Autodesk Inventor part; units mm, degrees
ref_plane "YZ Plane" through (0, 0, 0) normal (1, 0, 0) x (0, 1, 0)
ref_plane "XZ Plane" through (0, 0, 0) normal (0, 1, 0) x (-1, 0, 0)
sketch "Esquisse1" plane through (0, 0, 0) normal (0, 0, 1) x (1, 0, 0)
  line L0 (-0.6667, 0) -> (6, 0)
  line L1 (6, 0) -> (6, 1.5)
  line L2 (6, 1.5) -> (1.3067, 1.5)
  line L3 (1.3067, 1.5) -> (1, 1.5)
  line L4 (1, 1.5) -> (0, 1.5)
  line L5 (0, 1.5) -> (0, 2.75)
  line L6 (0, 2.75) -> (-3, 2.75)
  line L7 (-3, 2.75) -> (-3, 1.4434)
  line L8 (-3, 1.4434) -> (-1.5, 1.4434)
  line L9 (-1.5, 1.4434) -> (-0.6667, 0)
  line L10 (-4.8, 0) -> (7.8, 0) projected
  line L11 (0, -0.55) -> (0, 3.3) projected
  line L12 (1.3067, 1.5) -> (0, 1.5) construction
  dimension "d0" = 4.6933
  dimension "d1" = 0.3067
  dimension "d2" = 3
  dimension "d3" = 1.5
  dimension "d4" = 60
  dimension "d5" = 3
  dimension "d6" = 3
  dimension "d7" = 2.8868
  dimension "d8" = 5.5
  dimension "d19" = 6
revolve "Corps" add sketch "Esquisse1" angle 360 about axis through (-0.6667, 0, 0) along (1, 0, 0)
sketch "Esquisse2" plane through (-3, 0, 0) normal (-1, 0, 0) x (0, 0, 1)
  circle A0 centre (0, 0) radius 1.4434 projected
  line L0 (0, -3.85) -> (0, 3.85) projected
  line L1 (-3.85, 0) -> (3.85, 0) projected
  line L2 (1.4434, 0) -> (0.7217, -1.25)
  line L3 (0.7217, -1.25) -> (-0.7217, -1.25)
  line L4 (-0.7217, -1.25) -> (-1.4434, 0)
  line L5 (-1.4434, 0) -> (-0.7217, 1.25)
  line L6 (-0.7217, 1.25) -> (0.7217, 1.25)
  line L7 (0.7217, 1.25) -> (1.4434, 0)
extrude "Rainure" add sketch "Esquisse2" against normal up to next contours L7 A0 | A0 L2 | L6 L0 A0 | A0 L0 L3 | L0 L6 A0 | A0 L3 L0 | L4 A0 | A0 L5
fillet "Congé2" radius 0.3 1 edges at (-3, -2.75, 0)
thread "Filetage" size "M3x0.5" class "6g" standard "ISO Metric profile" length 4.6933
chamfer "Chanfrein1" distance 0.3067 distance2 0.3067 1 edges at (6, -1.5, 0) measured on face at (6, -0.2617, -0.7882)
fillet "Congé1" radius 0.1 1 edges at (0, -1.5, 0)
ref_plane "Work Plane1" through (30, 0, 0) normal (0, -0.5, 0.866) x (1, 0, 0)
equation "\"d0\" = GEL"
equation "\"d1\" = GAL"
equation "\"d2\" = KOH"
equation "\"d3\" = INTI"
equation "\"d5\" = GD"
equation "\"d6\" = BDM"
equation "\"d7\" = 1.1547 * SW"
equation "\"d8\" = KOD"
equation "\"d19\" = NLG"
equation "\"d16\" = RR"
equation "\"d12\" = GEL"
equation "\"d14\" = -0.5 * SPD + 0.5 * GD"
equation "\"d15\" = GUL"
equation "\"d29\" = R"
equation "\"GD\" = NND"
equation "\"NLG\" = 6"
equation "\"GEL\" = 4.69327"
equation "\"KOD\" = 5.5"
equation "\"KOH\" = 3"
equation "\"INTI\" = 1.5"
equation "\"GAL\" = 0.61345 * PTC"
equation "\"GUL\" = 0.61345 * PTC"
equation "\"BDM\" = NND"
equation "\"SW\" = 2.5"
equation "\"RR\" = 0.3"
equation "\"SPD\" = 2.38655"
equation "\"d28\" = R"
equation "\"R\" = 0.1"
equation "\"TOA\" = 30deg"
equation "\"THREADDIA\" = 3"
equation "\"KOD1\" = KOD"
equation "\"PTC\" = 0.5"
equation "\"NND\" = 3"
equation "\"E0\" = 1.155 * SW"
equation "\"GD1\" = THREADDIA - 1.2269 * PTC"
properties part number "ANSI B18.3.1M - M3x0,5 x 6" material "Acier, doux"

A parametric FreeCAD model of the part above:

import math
import FreeCAD as App
import Part
import Sketcher

V = App.Vector
Q = App.Units.Quantity


def edges_at(feature, points):
    """Names of the edges that pass closest to the given points."""
    edges = feature.Shape.Edges
    near = lambda p: min(range(len(edges)), key=lambda i: edges[i].distToShape(Part.Vertex(*p))[0])
    return sorted({f"Edge{near(p) + 1}" for p in points})


def add_polygon(sketch, points):
    """Adds a closed chain of lines whose ends are joined by coincident constraints."""
    first, n = sketch.GeometryCount, len(points)
    for a, b in zip(points, points[1:] + points[:1]):
        sketch.addGeometry(Part.LineSegment(App.Vector(*a, 0), App.Vector(*b, 0)), False)
    for i in range(n):
        sketch.addConstraint(Sketcher.Constraint("Coincident", first + i, 2, first + (i + 1) % n, 1))

doc = App.newDocument("Part")
body = doc.addObject("PartDesign::Body", "Body")

# Sketch on XY plane
sketch1 = body.newObject("Sketcher::SketchObject", "Sketch")
sketch1.AttachmentSupport = (doc.getObject("XY_Plane"), [""])
sketch1.MapMode = "FlatFace"
add_polygon(sketch1, [(-1.5, 1.4434), (-0.6667, 0), (6, 0), (6, 1.5), (0, 1.5), (0, 2.75), (-3, 2.75), (-3, 1.4434)])  # lines 0-7
sketch1.addConstraint([
    Sketcher.Constraint("Horizontal", 1),
    Sketcher.Constraint("Vertical", 2),
    Sketcher.Constraint("Horizontal", 3),
    Sketcher.Constraint("Vertical", 4),
    Sketcher.Constraint("Horizontal", 5),
    Sketcher.Constraint("Vertical", 6),
    Sketcher.Constraint("Horizontal", 7),
    Sketcher.Constraint("PointOnObject", 0, 2, -1),
    Sketcher.Constraint("PointOnObject", 3, 2, -2),
    Sketcher.Constraint("Equal", 7, 2),
    Sketcher.Constraint("DistanceX", 3, 2, 3, 1, Q("6 mm")),
    Sketcher.Constraint("DistanceX", 5, 2, 5, 1, Q("3 mm")),
    Sketcher.Constraint("DistanceX", 7, 1, 7, 2, Q("1.5 mm")),
    Sketcher.Constraint("DistanceY", 4, 1, 4, 2, Q("1.25 mm")),
    Sketcher.Constraint("DistanceX", 1, 1, 1, 2, Q("6.6667 mm")),
    Sketcher.Constraint("DistanceY", 6, 2, 6, 1, Q("1.3066 mm")),
])
revolution = body.newObject("PartDesign::Revolution", "Revolution")
revolution.Profile = sketch1
revolution.ReferenceAxis = (sketch1, ["H_Axis"])
revolution.Angle = 360

# Sketch on YZ plane
sketch2 = body.newObject("Sketcher::SketchObject", "Sketch001")
sketch2.AttachmentSupport = (doc.getObject("YZ_Plane"), [""])
sketch2.MapMode = "FlatFace"
sketch2.AttachmentOffset = App.Placement(V(0, 0, -3), App.Rotation())
sketch2.addGeometry([
    Part.LineSegment(V(1.25, 0.7217, 0), V(0, 1.4434, 0)),  # 0
    Part.ArcOfCircle(Part.Circle(V(0, 0, 0), V(0, 0, 1), 1.4434), math.radians(30.000418), math.radians(90)),  # 1
    Part.ArcOfCircle(Part.Circle(V(0, 0, 0), V(0, 0, 1), 1.4434), math.radians(90), math.radians(149.999582)),  # 2
    Part.LineSegment(V(0, 1.4434, 0), V(-1.25, 0.7217, 0)),  # 3
    Part.ArcOfCircle(Part.Circle(V(0, 0, 0), V(0, 0, 1), 1.4434), math.radians(-30.000418), math.radians(30.000418)),  # 4
    Part.LineSegment(V(1.25, 0.7217, 0), V(1.25, -0.7217, 0)),  # 5
    Part.LineSegment(V(-1.25, 0.7217, 0), V(-1.25, -0.7217, 0)),  # 6
    Part.ArcOfCircle(Part.Circle(V(0, 0, 0), V(0, 0, 1), 1.4434), math.radians(149.999582), math.radians(210.000418)),  # 7
    Part.LineSegment(V(-1.25, -0.7217, 0), V(0, -1.4434, 0)),  # 8
    Part.ArcOfCircle(Part.Circle(V(0, 0, 0), V(0, 0, 1), 1.4434), math.radians(-149.999582), math.radians(-90)),  # 9
    Part.ArcOfCircle(Part.Circle(V(0, 0, 0), V(0, 0, 1), 1.4434), math.radians(-90), math.radians(-30.000418)),  # 10
    Part.LineSegment(V(0, -1.4434, 0), V(1.25, -0.7217, 0)),  # 11
], False)
sketch2.addConstraint([
    Sketcher.Constraint("Coincident", 0, 1, 1, 1),
    Sketcher.Constraint("Coincident", 1, 2, 0, 2),
    Sketcher.Constraint("Coincident", 2, 1, 3, 1),
    Sketcher.Constraint("Coincident", 3, 2, 2, 2),
    Sketcher.Constraint("Coincident", 4, 1, 5, 2),
    Sketcher.Constraint("Coincident", 5, 1, 4, 2),
    Sketcher.Constraint("Coincident", 6, 1, 7, 1),
    Sketcher.Constraint("Coincident", 7, 2, 6, 2),
    Sketcher.Constraint("Coincident", 8, 1, 9, 1),
    Sketcher.Constraint("Coincident", 9, 2, 8, 2),
    Sketcher.Constraint("Coincident", 10, 1, 11, 1),
    Sketcher.Constraint("Coincident", 11, 2, 10, 2),
    Sketcher.Constraint("Vertical", 5),
    Sketcher.Constraint("Vertical", 6),
    Sketcher.Constraint("Coincident", 1, 3, -1, 1),
    Sketcher.Constraint("Coincident", 2, 3, -1, 1),
    Sketcher.Constraint("Coincident", 4, 3, -1, 1),
    Sketcher.Constraint("Coincident", 7, 3, -1, 1),
    Sketcher.Constraint("Coincident", 9, 3, -1, 1),
    Sketcher.Constraint("Coincident", 10, 3, -1, 1),
    Sketcher.Constraint("Coincident", 2, 1, 1, 2),
    Sketcher.Constraint("Coincident", 5, 1, 0, 1),
    Sketcher.Constraint("Coincident", 6, 1, 3, 2),
    Sketcher.Constraint("Coincident", 8, 1, 7, 2),
    Sketcher.Constraint("Coincident", 10, 1, 9, 2),
    Sketcher.Constraint("PointOnObject", 1, 2, -2),
    Sketcher.Constraint("PointOnObject", 9, 2, -2),
    Sketcher.Constraint("Parallel", 0, 8),
    Sketcher.Constraint("Parallel", 3, 11),
    Sketcher.Constraint("Angle", 0, Q("149.9996 deg")),
    Sketcher.Constraint("Radius", 1, Q("1.4434 mm")),
])
pad1 = body.newObject("PartDesign::Pad", "Pad")
pad1.Profile = sketch2
pad1.Type = "UpToFirst"
doc.recompute()

fillet = body.newObject("PartDesign::Fillet", "Fillet")
fillet.Base = (pad1, edges_at(pad1, [(-3, -2.75, 0)]))
fillet.Radius = 0.3
doc.recompute()

chamfer = body.newObject("PartDesign::Chamfer", "Chamfer")
chamfer.Base = (fillet, edges_at(fillet, [(6, -1.5, 0)]))
chamfer.ChamferType = "Two distances"
chamfer.Size = 0.3067
chamfer.Size2 = 0.3067
doc.recompute()

fillet2 = body.newObject("PartDesign::Fillet", "Fillet001")
fillet2.Base = (chamfer, edges_at(chamfer, [(0, -1.5, 0)]))
fillet2.Radius = 0.1

doc.recompute()
